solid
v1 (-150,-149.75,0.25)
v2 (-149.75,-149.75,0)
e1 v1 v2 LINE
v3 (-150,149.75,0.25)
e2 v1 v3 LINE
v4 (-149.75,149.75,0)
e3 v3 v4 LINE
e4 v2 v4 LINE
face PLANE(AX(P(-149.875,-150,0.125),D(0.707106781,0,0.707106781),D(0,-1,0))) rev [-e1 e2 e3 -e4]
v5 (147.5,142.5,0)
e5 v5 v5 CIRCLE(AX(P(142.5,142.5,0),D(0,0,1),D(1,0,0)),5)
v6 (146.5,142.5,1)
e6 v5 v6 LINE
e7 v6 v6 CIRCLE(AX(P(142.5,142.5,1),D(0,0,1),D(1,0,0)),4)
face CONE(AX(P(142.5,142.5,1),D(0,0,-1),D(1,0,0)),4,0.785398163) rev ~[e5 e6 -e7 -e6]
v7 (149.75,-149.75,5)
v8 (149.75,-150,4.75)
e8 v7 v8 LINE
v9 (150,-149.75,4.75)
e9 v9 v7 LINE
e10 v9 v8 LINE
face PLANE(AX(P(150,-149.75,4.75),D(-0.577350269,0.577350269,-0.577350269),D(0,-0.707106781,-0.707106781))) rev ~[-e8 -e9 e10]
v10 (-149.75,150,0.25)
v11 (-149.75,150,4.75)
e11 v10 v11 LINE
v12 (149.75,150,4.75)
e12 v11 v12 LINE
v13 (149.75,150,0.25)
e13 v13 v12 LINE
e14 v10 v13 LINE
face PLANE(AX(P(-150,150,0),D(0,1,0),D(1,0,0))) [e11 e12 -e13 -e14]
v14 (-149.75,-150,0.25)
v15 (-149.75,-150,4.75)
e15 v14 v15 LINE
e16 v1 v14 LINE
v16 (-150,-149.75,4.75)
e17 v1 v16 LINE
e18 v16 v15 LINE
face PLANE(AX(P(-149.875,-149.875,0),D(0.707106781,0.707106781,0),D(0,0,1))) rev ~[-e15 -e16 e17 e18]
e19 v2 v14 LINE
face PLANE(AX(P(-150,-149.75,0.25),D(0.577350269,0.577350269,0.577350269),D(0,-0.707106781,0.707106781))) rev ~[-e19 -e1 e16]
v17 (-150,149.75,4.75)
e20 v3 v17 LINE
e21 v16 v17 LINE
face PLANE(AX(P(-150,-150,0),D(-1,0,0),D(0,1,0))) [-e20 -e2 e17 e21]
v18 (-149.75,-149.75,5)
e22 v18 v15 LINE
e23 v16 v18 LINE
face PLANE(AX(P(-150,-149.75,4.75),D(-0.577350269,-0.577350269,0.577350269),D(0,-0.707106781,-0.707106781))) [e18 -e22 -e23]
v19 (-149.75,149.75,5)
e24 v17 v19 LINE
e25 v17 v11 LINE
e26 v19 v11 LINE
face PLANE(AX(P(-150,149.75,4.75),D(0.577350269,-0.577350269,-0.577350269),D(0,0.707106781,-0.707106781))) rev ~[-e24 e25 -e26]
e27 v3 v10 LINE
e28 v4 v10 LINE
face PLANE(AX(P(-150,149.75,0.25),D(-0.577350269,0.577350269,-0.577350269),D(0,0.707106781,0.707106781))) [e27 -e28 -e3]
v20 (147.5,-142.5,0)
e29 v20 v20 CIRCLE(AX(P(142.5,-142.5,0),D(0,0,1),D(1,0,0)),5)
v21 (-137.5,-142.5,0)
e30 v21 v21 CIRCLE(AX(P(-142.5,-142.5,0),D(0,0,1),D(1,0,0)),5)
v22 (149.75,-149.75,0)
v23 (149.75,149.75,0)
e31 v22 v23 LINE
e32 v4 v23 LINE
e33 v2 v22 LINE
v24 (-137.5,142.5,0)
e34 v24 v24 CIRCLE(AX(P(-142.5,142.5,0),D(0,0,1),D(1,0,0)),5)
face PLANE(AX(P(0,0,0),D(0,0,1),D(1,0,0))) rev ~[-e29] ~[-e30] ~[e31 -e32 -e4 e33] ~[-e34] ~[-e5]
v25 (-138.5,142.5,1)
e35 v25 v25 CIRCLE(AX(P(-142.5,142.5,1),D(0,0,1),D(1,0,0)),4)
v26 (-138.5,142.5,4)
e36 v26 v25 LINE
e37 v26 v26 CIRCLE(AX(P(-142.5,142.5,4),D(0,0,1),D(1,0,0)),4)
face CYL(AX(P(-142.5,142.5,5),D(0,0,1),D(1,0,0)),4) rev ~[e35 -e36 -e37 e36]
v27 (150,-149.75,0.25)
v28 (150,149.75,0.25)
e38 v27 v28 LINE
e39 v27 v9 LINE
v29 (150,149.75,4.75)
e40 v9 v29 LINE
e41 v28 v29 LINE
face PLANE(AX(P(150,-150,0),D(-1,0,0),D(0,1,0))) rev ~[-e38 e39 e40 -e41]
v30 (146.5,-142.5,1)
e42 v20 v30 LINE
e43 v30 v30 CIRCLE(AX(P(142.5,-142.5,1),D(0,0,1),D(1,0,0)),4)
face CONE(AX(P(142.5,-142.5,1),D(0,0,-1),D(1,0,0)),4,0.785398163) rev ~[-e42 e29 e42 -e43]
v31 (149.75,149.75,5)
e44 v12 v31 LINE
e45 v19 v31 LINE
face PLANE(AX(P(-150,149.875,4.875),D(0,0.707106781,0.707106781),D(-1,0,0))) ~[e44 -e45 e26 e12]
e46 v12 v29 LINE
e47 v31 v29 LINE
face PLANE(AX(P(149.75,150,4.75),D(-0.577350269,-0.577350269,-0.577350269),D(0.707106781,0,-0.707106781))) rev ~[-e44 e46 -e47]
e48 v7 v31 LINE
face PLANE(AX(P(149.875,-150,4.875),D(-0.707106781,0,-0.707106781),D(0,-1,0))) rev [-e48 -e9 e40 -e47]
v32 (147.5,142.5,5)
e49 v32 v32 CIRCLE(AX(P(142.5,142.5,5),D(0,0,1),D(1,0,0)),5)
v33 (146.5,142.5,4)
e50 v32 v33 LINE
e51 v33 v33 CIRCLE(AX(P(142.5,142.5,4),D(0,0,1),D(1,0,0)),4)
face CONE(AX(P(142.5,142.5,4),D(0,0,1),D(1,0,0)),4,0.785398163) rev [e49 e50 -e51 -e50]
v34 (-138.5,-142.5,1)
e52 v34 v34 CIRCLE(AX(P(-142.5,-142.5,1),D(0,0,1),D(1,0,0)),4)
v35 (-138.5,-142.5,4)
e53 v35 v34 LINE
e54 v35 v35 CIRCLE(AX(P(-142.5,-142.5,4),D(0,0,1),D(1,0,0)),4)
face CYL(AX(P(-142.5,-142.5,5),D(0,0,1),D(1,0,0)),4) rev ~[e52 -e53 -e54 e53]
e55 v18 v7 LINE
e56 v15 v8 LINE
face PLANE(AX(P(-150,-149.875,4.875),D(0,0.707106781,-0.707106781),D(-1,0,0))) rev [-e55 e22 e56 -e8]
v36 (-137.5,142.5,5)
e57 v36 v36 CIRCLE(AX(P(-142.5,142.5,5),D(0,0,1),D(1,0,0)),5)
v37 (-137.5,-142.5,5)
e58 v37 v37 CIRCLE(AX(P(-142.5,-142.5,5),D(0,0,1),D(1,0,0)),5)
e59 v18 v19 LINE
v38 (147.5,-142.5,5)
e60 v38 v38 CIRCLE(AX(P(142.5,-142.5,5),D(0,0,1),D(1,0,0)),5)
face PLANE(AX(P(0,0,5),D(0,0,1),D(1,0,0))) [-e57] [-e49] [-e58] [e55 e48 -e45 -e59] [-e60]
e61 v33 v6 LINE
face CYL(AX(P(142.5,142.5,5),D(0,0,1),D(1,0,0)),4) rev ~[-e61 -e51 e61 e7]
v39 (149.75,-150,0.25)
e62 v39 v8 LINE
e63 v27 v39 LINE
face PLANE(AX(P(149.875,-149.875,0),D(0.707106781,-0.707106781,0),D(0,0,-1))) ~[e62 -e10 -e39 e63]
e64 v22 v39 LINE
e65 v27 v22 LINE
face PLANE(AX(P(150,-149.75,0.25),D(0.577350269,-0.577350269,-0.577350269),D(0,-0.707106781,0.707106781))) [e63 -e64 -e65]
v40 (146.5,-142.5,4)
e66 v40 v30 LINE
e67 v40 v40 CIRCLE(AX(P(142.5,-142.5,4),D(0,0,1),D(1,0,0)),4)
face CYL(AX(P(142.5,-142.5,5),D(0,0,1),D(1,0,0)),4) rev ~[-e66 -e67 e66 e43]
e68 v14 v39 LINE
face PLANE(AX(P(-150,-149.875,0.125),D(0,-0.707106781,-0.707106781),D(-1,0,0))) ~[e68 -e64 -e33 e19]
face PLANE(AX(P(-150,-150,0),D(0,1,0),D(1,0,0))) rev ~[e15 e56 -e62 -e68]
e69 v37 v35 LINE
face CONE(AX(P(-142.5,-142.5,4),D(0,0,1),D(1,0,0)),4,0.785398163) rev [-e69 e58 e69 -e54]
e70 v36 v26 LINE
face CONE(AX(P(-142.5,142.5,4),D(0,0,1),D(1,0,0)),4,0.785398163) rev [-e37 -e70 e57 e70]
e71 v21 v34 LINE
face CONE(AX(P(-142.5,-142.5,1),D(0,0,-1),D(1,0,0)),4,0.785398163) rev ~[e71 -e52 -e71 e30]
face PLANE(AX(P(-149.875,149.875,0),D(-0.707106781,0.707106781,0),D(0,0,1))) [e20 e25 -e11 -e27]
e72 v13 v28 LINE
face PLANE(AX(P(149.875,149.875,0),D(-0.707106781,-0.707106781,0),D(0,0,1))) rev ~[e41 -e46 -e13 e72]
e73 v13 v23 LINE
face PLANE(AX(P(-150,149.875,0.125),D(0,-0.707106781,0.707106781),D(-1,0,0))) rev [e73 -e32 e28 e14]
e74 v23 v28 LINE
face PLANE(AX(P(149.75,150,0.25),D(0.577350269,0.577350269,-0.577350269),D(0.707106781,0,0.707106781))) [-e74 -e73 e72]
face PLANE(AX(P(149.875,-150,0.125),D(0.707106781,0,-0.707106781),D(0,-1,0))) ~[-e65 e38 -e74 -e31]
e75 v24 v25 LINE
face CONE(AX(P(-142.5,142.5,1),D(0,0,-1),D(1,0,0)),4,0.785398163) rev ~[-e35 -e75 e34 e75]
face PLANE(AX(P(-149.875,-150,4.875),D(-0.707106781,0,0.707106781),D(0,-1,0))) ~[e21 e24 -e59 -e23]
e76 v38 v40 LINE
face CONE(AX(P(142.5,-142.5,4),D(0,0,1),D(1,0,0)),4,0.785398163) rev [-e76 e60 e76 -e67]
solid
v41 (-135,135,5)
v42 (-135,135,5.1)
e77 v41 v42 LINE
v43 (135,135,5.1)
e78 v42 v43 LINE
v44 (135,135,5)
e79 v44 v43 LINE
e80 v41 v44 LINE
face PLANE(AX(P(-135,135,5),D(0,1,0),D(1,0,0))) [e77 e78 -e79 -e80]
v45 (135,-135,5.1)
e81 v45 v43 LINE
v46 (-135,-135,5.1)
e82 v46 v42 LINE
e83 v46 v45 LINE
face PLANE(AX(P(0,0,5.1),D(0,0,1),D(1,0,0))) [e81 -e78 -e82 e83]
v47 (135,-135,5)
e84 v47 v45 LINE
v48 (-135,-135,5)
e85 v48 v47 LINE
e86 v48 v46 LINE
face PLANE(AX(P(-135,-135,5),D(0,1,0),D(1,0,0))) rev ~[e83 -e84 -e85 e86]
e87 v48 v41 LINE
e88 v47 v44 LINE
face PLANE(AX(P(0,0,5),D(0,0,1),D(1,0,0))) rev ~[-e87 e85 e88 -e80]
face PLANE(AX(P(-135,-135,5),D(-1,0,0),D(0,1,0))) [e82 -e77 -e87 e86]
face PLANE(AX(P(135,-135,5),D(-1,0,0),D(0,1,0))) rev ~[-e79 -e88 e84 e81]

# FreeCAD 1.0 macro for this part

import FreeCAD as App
import Part
import Sketcher
from FreeCAD import Vector


def edges_at(feature, points):
    """Names of the edges that pass closest to the given points."""
    edges = feature.Shape.Edges
    near = lambda p: min(range(len(edges)), key=lambda i: edges[i].distToShape(Part.Vertex(*p))[0])
    return sorted({f"Edge{near(p) + 1}" for p in points})


def add_polygon(sketch, points):
    """Adds a closed chain of lines whose ends are joined by coincident constraints."""
    first, n = sketch.GeometryCount, len(points)
    for a, b in zip(points, points[1:] + points[:1]):
        sketch.addGeometry(Part.LineSegment(App.Vector(*a, 0), App.Vector(*b, 0)), False)
    for i in range(n):
        sketch.addConstraint(Sketcher.Constraint("Coincident", first + i, 2, first + (i + 1) % n, 1))

doc = App.newDocument("Part")
body = doc.addObject("PartDesign::Body", "Body")

# Sketch on XY plane
sketch1 = doc.addObject("Sketcher::SketchObject", "Sketch")
body.addObject(sketch1)
sketch1.AttachmentSupport = (doc.XY_Plane, [""])
sketch1.MapMode = "FlatFace"
add_polygon(sketch1, [(-150, 150), (-150, -150), (150, -150), (150, 150)])  # lines 0-3
sketch1.addConstraint([
    Sketcher.Constraint("Vertical", 0),
    Sketcher.Constraint("Horizontal", 1),
    Sketcher.Constraint("Vertical", 2),
    Sketcher.Constraint("Horizontal", 3),
    Sketcher.Constraint("Symmetric", 0, 2, 2, 2, -1, 1),
    Sketcher.Constraint("Equal", 3, 0),
    Sketcher.Constraint("DistanceX", 1, 1, 1, 2, 300.0),
])
pad1 = doc.addObject("PartDesign::Pad", "Pad")
body.addObject(pad1)
pad1.Profile = sketch1
pad1.Length = 5
doc.recompute()

chamfer = doc.addObject("PartDesign::Chamfer", "Chamfer")
body.addObject(chamfer)
chamfer.Base = (pad1, ["Edge1"])
chamfer.UseAllEdges = True
chamfer.Size = 0.25

# Sketch on XY plane
sketch2 = doc.addObject("Sketcher::SketchObject", "Sketch001")
body.addObject(sketch2)
sketch2.AttachmentSupport = (doc.XY_Plane, [""])
sketch2.MapMode = "FlatFace"
sketch2.AttachmentOffset = App.Placement(Vector(0, 0, 5), App.Rotation())
sketch2.addGeometry([
    Part.Circle(Vector(-142.5, 142.5, 0), Vector(0, 0, 1), 4),
    Part.Circle(Vector(142.5, 142.5, 0), Vector(0, 0, 1), 4),
    Part.Circle(Vector(142.5, -142.5, 0), Vector(0, 0, 1), 4),
    Part.Circle(Vector(-142.5, -142.5, 0), Vector(0, 0, 1), 4),
], False)
sketch2.addConstraint([
    Sketcher.Constraint("Equal", 0, 1),
    Sketcher.Constraint("Equal", 1, 2),
    Sketcher.Constraint("Equal", 2, 3),
    Sketcher.Constraint("Symmetric", 0, 3, 2, 3, -1, 1),
    Sketcher.Constraint("Symmetric", 1, 3, 3, 3, -1, 1),
    Sketcher.Constraint("Symmetric", 0, 3, 1, 3, -2),
    Sketcher.Constraint("Diameter", 0, 8.0),
    Sketcher.Constraint("DistanceX", 0, 3, 1, 3, 285.0),
    Sketcher.Constraint("DistanceY", 2, 3, 1, 3, 285.0),
])
pocket1 = doc.addObject("PartDesign::Pocket", "Pocket")
body.addObject(pocket1)
pocket1.Profile = sketch2
pocket1.Length = 25
doc.recompute()

chamfer2 = doc.addObject("PartDesign::Chamfer", "Chamfer001")
body.addObject(chamfer2)
chamfer2.Base = (pocket1, edges_at(pocket1, [
    (-146.5, 142.5, 5),
    (-138.5, 142.5, 2.5),
    (-146.5, 142.5, 0),
    (-146.5, -142.5, 5),
    (-138.5, -142.5, 2.5),
    (-146.5, -142.5, 0),
    (138.5, -142.5, 5),
    (146.5, -142.5, 2.5),
    (138.5, -142.5, 0),
    (138.5, 142.5, 5),
    (146.5, 142.5, 2.5),
    (138.5, 142.5, 0),
]))
chamfer2.Size = 1
body2 = doc.addObject("PartDesign::Body", "Body001")

# Sketch on XY plane
sketch3 = doc.addObject("Sketcher::SketchObject", "Sketch002")
body2.addObject(sketch3)
sketch3.AttachmentSupport = (doc.getObject("XY_Plane001"), [""])
sketch3.MapMode = "FlatFace"
sketch3.AttachmentOffset = App.Placement(Vector(0, 0, 5), App.Rotation())
add_polygon(sketch3, [(-135, 135), (-135, -135), (135, -135), (135, 135)])  # lines 0-3
sketch3.addConstraint([
    Sketcher.Constraint("Vertical", 0),
    Sketcher.Constraint("Horizontal", 1),
    Sketcher.Constraint("Vertical", 2),
    Sketcher.Constraint("Horizontal", 3),
    Sketcher.Constraint("Symmetric", 0, 2, 2, 2, -1, 1),
    Sketcher.Constraint("Equal", 3, 0),
    Sketcher.Constraint("DistanceX", 1, 1, 1, 2, 270.0),
])
pad2 = doc.addObject("PartDesign::Pad", "Pad001")
body2.addObject(pad2)
pad2.Profile = sketch3
pad2.Length = 0.1

doc.recompute()
